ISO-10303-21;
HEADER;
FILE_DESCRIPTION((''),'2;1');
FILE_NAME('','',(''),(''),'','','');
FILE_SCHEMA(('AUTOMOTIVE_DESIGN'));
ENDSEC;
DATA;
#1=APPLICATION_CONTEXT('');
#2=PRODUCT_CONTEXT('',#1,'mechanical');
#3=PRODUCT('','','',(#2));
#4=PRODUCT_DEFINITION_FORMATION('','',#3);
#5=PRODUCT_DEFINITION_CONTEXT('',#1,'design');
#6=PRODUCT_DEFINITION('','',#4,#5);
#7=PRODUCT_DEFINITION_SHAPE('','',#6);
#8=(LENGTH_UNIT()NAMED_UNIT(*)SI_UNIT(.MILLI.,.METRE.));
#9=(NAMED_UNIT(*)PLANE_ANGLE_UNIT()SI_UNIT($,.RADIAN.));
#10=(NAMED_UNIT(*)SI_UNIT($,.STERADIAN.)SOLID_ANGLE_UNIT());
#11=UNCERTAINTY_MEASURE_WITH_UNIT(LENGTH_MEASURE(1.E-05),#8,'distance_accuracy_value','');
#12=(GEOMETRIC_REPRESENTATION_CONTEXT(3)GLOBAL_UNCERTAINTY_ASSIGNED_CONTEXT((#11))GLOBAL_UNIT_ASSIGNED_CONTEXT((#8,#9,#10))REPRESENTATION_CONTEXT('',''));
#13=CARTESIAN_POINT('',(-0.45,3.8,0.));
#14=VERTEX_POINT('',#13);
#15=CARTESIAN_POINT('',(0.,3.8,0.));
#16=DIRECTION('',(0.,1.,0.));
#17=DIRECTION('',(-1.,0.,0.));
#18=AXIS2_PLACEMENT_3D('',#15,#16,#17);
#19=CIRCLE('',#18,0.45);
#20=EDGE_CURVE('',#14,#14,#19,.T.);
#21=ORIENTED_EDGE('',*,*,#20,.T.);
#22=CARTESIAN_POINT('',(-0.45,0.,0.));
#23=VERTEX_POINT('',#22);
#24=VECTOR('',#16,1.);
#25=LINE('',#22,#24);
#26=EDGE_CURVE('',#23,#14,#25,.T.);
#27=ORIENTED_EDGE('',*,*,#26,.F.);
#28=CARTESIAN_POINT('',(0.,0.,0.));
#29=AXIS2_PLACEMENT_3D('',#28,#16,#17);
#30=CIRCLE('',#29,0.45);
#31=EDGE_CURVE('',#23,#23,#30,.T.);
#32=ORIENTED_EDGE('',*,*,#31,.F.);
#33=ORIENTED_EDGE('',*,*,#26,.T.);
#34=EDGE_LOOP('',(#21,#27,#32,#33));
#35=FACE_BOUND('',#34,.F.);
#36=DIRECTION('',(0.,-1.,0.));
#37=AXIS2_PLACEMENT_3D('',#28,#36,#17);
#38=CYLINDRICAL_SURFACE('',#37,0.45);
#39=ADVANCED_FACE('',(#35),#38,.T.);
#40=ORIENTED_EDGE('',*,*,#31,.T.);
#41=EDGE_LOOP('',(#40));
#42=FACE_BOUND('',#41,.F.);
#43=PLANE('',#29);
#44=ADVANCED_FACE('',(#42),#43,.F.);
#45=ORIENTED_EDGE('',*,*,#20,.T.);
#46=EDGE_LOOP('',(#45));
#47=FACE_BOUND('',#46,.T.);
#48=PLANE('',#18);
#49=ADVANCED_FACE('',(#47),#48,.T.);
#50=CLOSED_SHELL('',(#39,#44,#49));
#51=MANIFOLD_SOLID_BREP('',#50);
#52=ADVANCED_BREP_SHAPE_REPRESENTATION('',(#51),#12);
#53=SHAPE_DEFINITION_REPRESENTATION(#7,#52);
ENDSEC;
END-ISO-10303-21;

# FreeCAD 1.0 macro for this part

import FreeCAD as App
import Part
import Sketcher

V = App.Vector
Q = App.Units.Quantity

doc = App.newDocument("Part")
params = doc.addObject("Spreadsheet::Sheet", "Params")
for row, (alias, value) in enumerate([
    ("sketch1_diameter", "0.9 mm"),
    ("pad1_length", "3.8 mm"),
], start=1):
    params.set(f"A{row}", alias)
    params.set(f"B{row}", "=" + value)
    params.setAlias(f"B{row}", alias)

body = doc.addObject("PartDesign::Body", "Body")

# Sketch on XZ plane
sketch1 = body.newObject("Sketcher::SketchObject", "Sketch")
sketch1.AttachmentSupport = (doc.getObject("XZ_Plane"), [""])
sketch1.MapMode = "FlatFace"
sketch1.addGeometry(Part.Circle(V(0, 0, 0), V(0, 0, 1), 0.45), False)
sketch1.addConstraint([
    Sketcher.Constraint("Coincident", 0, 3, -1, 1),
    Sketcher.Constraint("Diameter", 0, Q("0.9 mm")),
])
sketch1.setExpression("Constraints[1]", "Params.sketch1_diameter")
pad1 = body.newObject("PartDesign::Pad", "Pad")
pad1.Profile = sketch1
pad1.setExpression("Length", "Params.pad1_length")
pad1.Reversed = True

doc.recompute()
